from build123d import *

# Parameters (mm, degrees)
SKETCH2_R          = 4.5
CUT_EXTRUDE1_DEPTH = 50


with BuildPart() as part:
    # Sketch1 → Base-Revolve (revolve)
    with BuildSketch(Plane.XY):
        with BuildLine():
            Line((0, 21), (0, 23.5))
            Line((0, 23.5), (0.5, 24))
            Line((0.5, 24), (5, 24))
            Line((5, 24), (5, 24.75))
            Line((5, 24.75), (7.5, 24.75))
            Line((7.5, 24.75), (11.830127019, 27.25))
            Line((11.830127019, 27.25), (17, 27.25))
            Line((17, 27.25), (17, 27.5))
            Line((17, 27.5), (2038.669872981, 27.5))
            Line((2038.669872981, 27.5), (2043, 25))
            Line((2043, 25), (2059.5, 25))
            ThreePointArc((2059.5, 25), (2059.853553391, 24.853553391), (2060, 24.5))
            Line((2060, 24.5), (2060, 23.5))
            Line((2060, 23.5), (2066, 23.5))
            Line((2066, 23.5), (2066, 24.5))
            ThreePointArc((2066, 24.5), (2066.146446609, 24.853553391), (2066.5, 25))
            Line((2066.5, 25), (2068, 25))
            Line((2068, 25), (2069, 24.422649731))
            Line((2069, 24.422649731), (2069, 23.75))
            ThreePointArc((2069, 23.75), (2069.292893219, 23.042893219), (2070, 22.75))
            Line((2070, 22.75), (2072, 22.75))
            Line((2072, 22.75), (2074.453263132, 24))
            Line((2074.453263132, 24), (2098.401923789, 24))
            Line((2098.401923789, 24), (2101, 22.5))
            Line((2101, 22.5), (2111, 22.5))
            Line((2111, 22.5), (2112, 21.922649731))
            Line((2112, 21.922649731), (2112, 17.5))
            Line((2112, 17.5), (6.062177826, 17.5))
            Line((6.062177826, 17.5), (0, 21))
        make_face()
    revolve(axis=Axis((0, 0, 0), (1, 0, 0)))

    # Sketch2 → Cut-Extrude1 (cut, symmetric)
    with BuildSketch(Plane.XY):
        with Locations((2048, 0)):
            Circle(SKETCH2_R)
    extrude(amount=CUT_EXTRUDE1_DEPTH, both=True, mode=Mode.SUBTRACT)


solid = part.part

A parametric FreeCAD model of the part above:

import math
import FreeCAD as App
import Part
import Sketcher
Q = App.Units.Quantity

doc = App.newDocument("Part")
body = doc.addObject("PartDesign::Body", "Body")

sketch1 = body.newObject("Sketcher::SketchObject", "Sketch")
sketch1.AttachmentSupport = (doc.getObject("XY_Plane"), [""])
sketch1.MapMode = "FlatFace"
sketch1.addGeometry(Part.LineSegment(App.Vector(0, 23.5, 0), App.Vector(0, 21, 0)), False)
sketch1.addGeometry(Part.LineSegment(App.Vector(0, 21, 0), App.Vector(6.06, 17.5, 0)), False)
sketch1.addGeometry(Part.LineSegment(App.Vector(6.06, 17.5, 0), App.Vector(2112, 17.5, 0)), False)
sketch1.addGeometry(Part.LineSegment(App.Vector(2112, 17.5, 0), App.Vector(2112, 21.92, 0)), False)
sketch1.addGeometry(Part.LineSegment(App.Vector(2112, 21.92, 0), App.Vector(2111, 22.5, 0)), False)
sketch1.addGeometry(Part.LineSegment(App.Vector(2111, 22.5, 0), App.Vector(2101, 22.5, 0)), False)
sketch1.addGeometry(Part.LineSegment(App.Vector(2101, 22.5, 0), App.Vector(2098.4, 24, 0)), False)
sketch1.addGeometry(Part.LineSegment(App.Vector(2098.4, 24, 0), App.Vector(2074.45, 24, 0)), False)
sketch1.addGeometry(Part.LineSegment(App.Vector(2074.45, 24, 0), App.Vector(2072, 22.75, 0)), False)
sketch1.addGeometry(Part.LineSegment(App.Vector(2072, 22.75, 0), App.Vector(2070, 22.75, 0)), False)
sketch1.addGeometry(Part.ArcOfCircle(Part.Circle(App.Vector(2070, 23.75, 0), App.Vector(0, 0, 1), 1), math.radians(-180), math.radians(-90)), False)
sketch1.addGeometry(Part.LineSegment(App.Vector(2069, 23.75, 0), App.Vector(2069, 24.42, 0)), False)
sketch1.addGeometry(Part.LineSegment(App.Vector(2069, 24.42, 0), App.Vector(2068, 25, 0)), False)
sketch1.addGeometry(Part.LineSegment(App.Vector(2068, 25, 0), App.Vector(2066.5, 25, 0)), False)
sketch1.addGeometry(Part.ArcOfCircle(Part.Circle(App.Vector(2066.5, 24.5, 0), App.Vector(0, 0, 1), 0.5), math.radians(90), math.radians(180)), False)
sketch1.addGeometry(Part.LineSegment(App.Vector(2066, 24.5, 0), App.Vector(2066, 23.5, 0)), False)
sketch1.addGeometry(Part.LineSegment(App.Vector(2066, 23.5, 0), App.Vector(2060, 23.5, 0)), False)
sketch1.addGeometry(Part.LineSegment(App.Vector(2060, 23.5, 0), App.Vector(2060, 24.5, 0)), False)
sketch1.addGeometry(Part.ArcOfCircle(Part.Circle(App.Vector(2059.5, 24.5, 0), App.Vector(0, 0, 1), 0.5), math.radians(0), math.radians(90)), False)
sketch1.addGeometry(Part.LineSegment(App.Vector(2059.5, 25, 0), App.Vector(2043, 25, 0)), False)
sketch1.addGeometry(Part.LineSegment(App.Vector(2043, 25, 0), App.Vector(2038.67, 27.5, 0)), False)
sketch1.addGeometry(Part.LineSegment(App.Vector(2038.67, 27.5, 0), App.Vector(17, 27.5, 0)), False)
sketch1.addGeometry(Part.LineSegment(App.Vector(17, 27.5, 0), App.Vector(17, 27.25, 0)), False)
sketch1.addGeometry(Part.LineSegment(App.Vector(17, 27.25, 0), App.Vector(11.83, 27.25, 0)), False)
sketch1.addGeometry(Part.LineSegment(App.Vector(11.83, 27.25, 0), App.Vector(7.5, 24.75, 0)), False)
sketch1.addGeometry(Part.LineSegment(App.Vector(7.5, 24.75, 0), App.Vector(5, 24.75, 0)), False)
sketch1.addGeometry(Part.LineSegment(App.Vector(5, 24.75, 0), App.Vector(5, 24, 0)), False)
sketch1.addGeometry(Part.LineSegment(App.Vector(5, 24, 0), App.Vector(0.5, 24, 0)), False)
sketch1.addGeometry(Part.LineSegment(App.Vector(0.5, 24, 0), App.Vector(0, 23.5, 0)), False)
sketch1.addConstraint(Sketcher.Constraint("Coincident", 0, 2, 1, 1))
sketch1.addConstraint(Sketcher.Constraint("Coincident", 1, 2, 2, 1))
sketch1.addConstraint(Sketcher.Constraint("Coincident", 2, 2, 3, 1))
sketch1.addConstraint(Sketcher.Constraint("Coincident", 3, 2, 4, 1))
sketch1.addConstraint(Sketcher.Constraint("Coincident", 4, 2, 5, 1))
sketch1.addConstraint(Sketcher.Constraint("Coincident", 5, 2, 6, 1))
sketch1.addConstraint(Sketcher.Constraint("Coincident", 6, 2, 7, 1))
sketch1.addConstraint(Sketcher.Constraint("Coincident", 7, 2, 8, 1))
sketch1.addConstraint(Sketcher.Constraint("Coincident", 8, 2, 9, 1))
sketch1.addConstraint(Sketcher.Constraint("Tangent", 9, 2, 10, 2))
sketch1.addConstraint(Sketcher.Constraint("Tangent", 10, 1, 11, 1))
sketch1.addConstraint(Sketcher.Constraint("Coincident", 11, 2, 12, 1))
sketch1.addConstraint(Sketcher.Constraint("Coincident", 12, 2, 13, 1))
sketch1.addConstraint(Sketcher.Constraint("Tangent", 13, 2, 14, 1))
sketch1.addConstraint(Sketcher.Constraint("Tangent", 14, 2, 15, 1))
sketch1.addConstraint(Sketcher.Constraint("Coincident", 15, 2, 16, 1))
sketch1.addConstraint(Sketcher.Constraint("Coincident", 16, 2, 17, 1))
sketch1.addConstraint(Sketcher.Constraint("Tangent", 17, 2, 18, 1))
sketch1.addConstraint(Sketcher.Constraint("Tangent", 18, 2, 19, 1))
sketch1.addConstraint(Sketcher.Constraint("Coincident", 19, 2, 20, 1))
sketch1.addConstraint(Sketcher.Constraint("Coincident", 20, 2, 21, 1))
sketch1.addConstraint(Sketcher.Constraint("Coincident", 21, 2, 22, 1))
sketch1.addConstraint(Sketcher.Constraint("Coincident", 22, 2, 23, 1))
sketch1.addConstraint(Sketcher.Constraint("Coincident", 23, 2, 24, 1))
sketch1.addConstraint(Sketcher.Constraint("Coincident", 24, 2, 25, 1))
sketch1.addConstraint(Sketcher.Constraint("Coincident", 25, 2, 26, 1))
sketch1.addConstraint(Sketcher.Constraint("Coincident", 26, 2, 27, 1))
sketch1.addConstraint(Sketcher.Constraint("Coincident", 27, 2, 28, 1))
sketch1.addConstraint(Sketcher.Constraint("Coincident", 28, 2, 0, 1))
sketch1.addConstraint(Sketcher.Constraint("Vertical", 0))
sketch1.addConstraint(Sketcher.Constraint("Horizontal", 2))
sketch1.addConstraint(Sketcher.Constraint("Vertical", 3))
sketch1.addConstraint(Sketcher.Constraint("Horizontal", 5))
sketch1.addConstraint(Sketcher.Constraint("Horizontal", 7))
sketch1.addConstraint(Sketcher.Constraint("Horizontal", 9))
sketch1.addConstraint(Sketcher.Constraint("Vertical", 11))
sketch1.addConstraint(Sketcher.Constraint("Horizontal", 13))
sketch1.addConstraint(Sketcher.Constraint("Vertical", 15))
sketch1.addConstraint(Sketcher.Constraint("Horizontal", 16))
sketch1.addConstraint(Sketcher.Constraint("Vertical", 17))
sketch1.addConstraint(Sketcher.Constraint("Horizontal", 19))
sketch1.addConstraint(Sketcher.Constraint("Horizontal", 21))
sketch1.addConstraint(Sketcher.Constraint("Vertical", 22))
sketch1.addConstraint(Sketcher.Constraint("Horizontal", 23))
sketch1.addConstraint(Sketcher.Constraint("Horizontal", 25))
sketch1.addConstraint(Sketcher.Constraint("Vertical", 26))
sketch1.addConstraint(Sketcher.Constraint("Horizontal", 27))
sketch1.addConstraint(Sketcher.Constraint("Equal", 14, 18))
sketch1.addConstraint(Sketcher.Constraint("PointOnObject", 0, 2, -2))
sketch1.addConstraint(Sketcher.Constraint("Parallel", 1, 4))
sketch1.addConstraint(Sketcher.Constraint("Parallel", 4, 6))
sketch1.addConstraint(Sketcher.Constraint("Parallel", 6, 12))
sketch1.addConstraint(Sketcher.Constraint("Parallel", 12, 20))
sketch1.addConstraint(Sketcher.Constraint("Horizontal", 14, 3, 18, 3))
sketch1.addConstraint(Sketcher.Constraint("Horizontal", 7, 2, 26, 2))
sketch1.addConstraint(Sketcher.Constraint("Horizontal", 16, 2, 28, 2))
sketch1.addConstraint(Sketcher.Constraint("Equal", 25, 0))
sketch1.addConstraint(Sketcher.Constraint("Equal", 4, 12))
sketch1.addConstraint(Sketcher.Constraint("Equal", 20, 24))
sketch1.addConstraint(Sketcher.Constraint("Radius", 10, 1.0))
sketch1.addConstraint(Sketcher.Constraint("Radius", 14, 0.5))
sketch1.addConstraint(Sketcher.Constraint("DistanceX", 5, 2, 5, 1, 10.0))
sketch1.addConstraint(Sketcher.Constraint("DistanceX", 9, 2, 9, 1, 2.0))
sketch1.addConstraint(Sketcher.Constraint("DistanceX", 16, 2, 16, 1, 6.0))
sketch1.addConstraint(Sketcher.Constraint("DistanceY", 15, 2, 15, 1, 1.0))
sketch1.addConstraint(Sketcher.Constraint("Angle", 1, Q("-30 deg")))
sketch1.addConstraint(Sketcher.Constraint("Angle", 8, Q("-153 deg")))
sketch1.addConstraint(Sketcher.Constraint("Angle", 24, Q("-150 deg")))
sketch1.addConstraint(Sketcher.Constraint("Angle", 28, Q("-135 deg")))
sketch1.addConstraint(Sketcher.Constraint("Distance", 1, 7.0))
sketch1.addConstraint(Sketcher.Constraint("Distance", 6, 3.0))
sketch1.addConstraint(Sketcher.Constraint("Distance", 20, 5.0))
sketch1.addConstraint(Sketcher.Constraint("DistanceX", 13, 2, 13, 1, 1.5))
sketch1.addConstraint(Sketcher.Constraint("DistanceX", 19, 2, 19, 1, 16.5))
sketch1.addConstraint(Sketcher.Constraint("DistanceX", 25, 2, 25, 1, 2.5))
sketch1.addConstraint(Sketcher.Constraint("DistanceX", 27, 2, 27, 1, 4.5))
sketch1.addConstraint(Sketcher.Constraint("DistanceX", -1, 1, 10, 3, 2070.0))
sketch1.addConstraint(Sketcher.Constraint("DistanceY", -1, 1, 0, 2, 21.0))
sketch1.addConstraint(Sketcher.Constraint("DistanceX", -1, 1, 2, 2, 2112.0))
sketch1.addConstraint(Sketcher.Constraint("DistanceX", -1, 1, 4, 2, 2111.0))
sketch1.addConstraint(Sketcher.Constraint("DistanceY", -1, 1, 6, 2, 24.0))
sketch1.addConstraint(Sketcher.Constraint("DistanceX", -1, 1, 21, 2, 17.0))
sketch1.addConstraint(Sketcher.Constraint("DistanceY", 22, 2, 22, 1, 0.25))
sketch1.addConstraint(Sketcher.Constraint("DistanceY", -1, 1, 10, 3, 23.75))
revolution = body.newObject("PartDesign::Revolution", "Revolution")
revolution.Profile = sketch1
revolution.ReferenceAxis = (sketch1, ["H_Axis"])
revolution.Angle = 360

sketch2 = body.newObject("Sketcher::SketchObject", "Sketch001")
sketch2.AttachmentSupport = (doc.getObject("XY_Plane"), [""])
sketch2.MapMode = "FlatFace"
sketch2.addGeometry(Part.Circle(App.Vector(2048, 0, 0), App.Vector(0, 0, 1), 4.5), False)
sketch2.addConstraint(Sketcher.Constraint("PointOnObject", 0, 3, -1))
sketch2.addConstraint(Sketcher.Constraint("Diameter", 0, 9.0))
sketch2.addConstraint(Sketcher.Constraint("DistanceX", -1, 1, 0, 3, 2048.0))
pocket1 = body.newObject("PartDesign::Pocket", "Pocket")
pocket1.Profile = sketch2
pocket1.Length = 100
pocket1.Midplane = True

doc.recompute()
